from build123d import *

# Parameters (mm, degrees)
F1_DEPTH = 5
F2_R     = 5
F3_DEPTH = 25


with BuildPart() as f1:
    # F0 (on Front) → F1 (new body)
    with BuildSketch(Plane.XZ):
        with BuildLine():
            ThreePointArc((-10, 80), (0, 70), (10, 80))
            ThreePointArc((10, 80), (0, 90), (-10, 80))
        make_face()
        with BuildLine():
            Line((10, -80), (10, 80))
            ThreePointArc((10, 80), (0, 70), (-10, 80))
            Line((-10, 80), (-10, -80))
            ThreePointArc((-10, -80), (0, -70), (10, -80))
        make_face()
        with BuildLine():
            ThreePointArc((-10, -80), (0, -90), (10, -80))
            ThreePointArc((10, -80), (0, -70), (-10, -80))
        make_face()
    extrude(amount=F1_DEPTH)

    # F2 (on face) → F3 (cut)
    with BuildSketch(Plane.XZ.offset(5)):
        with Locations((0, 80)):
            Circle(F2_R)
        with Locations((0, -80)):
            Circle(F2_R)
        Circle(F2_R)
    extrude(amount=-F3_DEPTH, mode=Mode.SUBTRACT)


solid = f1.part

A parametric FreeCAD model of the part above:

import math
import FreeCAD as App
import Part
import Sketcher
Q = App.Units.Quantity

doc = App.newDocument("Part")
body = doc.addObject("PartDesign::Body", "Body")

# Sketch on XZ plane
sketch1 = body.newObject("Sketcher::SketchObject", "Sketch")
sketch1.AttachmentSupport = (doc.getObject("XZ_Plane"), [""])
sketch1.MapMode = "FlatFace"
sketch1.addGeometry([
    Part.ArcOfCircle(Part.Circle(App.Vector(0, 80, 0), App.Vector(0, 0, 1), 10), math.radians(0), math.radians(180)),
    Part.LineSegment(App.Vector(-10, 80, 0), App.Vector(-10, -80, 0)),
    Part.ArcOfCircle(Part.Circle(App.Vector(0, -80, 0), App.Vector(0, 0, 1), 10), math.radians(180), math.radians(360)),
    Part.LineSegment(App.Vector(10, -80, 0), App.Vector(10, 80, 0)),
], False)
sketch1.addConstraint([
    Sketcher.Constraint("Tangent", 0, 2, 1, 1),
    Sketcher.Constraint("Tangent", 1, 2, 2, 1),
    Sketcher.Constraint("Tangent", 2, 2, 3, 1),
    Sketcher.Constraint("Tangent", 3, 2, 0, 1),
    Sketcher.Constraint("Vertical", 1),
    Sketcher.Constraint("Vertical", 3),
    Sketcher.Constraint("Symmetric", 0, 3, 2, 3, -1, 1),
    Sketcher.Constraint("Radius", 0, Q("10 mm")),
    Sketcher.Constraint("DistanceY", 1, 2, 1, 1, Q("160 mm")),
])
pad1 = body.newObject("PartDesign::Pad", "Pad")
pad1.Profile = sketch1
pad1.Length = 5

# Sketch on XZ plane
sketch2 = body.newObject("Sketcher::SketchObject", "Sketch001")
sketch2.AttachmentSupport = (doc.getObject("XZ_Plane"), [""])
sketch2.MapMode = "FlatFace"
sketch2.AttachmentOffset = App.Placement(App.Vector(0, 0, 5), App.Rotation())
sketch2.addGeometry([
    Part.Circle(App.Vector(0, 80, 0), App.Vector(0, 0, 1), 5),
    Part.Circle(App.Vector(0, -80, 0), App.Vector(0, 0, 1), 5),
    Part.Circle(App.Vector(0, 0, 0), App.Vector(0, 0, 1), 5),
], False)
sketch2.addConstraint([
    Sketcher.Constraint("Coincident", 2, 3, -1, 1),
    Sketcher.Constraint("Equal", 0, 1),
    Sketcher.Constraint("Equal", 1, 2),
    Sketcher.Constraint("Symmetric", 0, 3, 1, 3, -1, 1),
    Sketcher.Constraint("PointOnObject", 0, 3, -2),
    Sketcher.Constraint("Diameter", 0, Q("10 mm")),
    Sketcher.Constraint("DistanceY", -1, 1, 0, 3, Q("80 mm")),
])
pocket1 = body.newObject("PartDesign::Pocket", "Pocket")
pocket1.Profile = sketch2
pocket1.Length = 25

doc.recompute()
